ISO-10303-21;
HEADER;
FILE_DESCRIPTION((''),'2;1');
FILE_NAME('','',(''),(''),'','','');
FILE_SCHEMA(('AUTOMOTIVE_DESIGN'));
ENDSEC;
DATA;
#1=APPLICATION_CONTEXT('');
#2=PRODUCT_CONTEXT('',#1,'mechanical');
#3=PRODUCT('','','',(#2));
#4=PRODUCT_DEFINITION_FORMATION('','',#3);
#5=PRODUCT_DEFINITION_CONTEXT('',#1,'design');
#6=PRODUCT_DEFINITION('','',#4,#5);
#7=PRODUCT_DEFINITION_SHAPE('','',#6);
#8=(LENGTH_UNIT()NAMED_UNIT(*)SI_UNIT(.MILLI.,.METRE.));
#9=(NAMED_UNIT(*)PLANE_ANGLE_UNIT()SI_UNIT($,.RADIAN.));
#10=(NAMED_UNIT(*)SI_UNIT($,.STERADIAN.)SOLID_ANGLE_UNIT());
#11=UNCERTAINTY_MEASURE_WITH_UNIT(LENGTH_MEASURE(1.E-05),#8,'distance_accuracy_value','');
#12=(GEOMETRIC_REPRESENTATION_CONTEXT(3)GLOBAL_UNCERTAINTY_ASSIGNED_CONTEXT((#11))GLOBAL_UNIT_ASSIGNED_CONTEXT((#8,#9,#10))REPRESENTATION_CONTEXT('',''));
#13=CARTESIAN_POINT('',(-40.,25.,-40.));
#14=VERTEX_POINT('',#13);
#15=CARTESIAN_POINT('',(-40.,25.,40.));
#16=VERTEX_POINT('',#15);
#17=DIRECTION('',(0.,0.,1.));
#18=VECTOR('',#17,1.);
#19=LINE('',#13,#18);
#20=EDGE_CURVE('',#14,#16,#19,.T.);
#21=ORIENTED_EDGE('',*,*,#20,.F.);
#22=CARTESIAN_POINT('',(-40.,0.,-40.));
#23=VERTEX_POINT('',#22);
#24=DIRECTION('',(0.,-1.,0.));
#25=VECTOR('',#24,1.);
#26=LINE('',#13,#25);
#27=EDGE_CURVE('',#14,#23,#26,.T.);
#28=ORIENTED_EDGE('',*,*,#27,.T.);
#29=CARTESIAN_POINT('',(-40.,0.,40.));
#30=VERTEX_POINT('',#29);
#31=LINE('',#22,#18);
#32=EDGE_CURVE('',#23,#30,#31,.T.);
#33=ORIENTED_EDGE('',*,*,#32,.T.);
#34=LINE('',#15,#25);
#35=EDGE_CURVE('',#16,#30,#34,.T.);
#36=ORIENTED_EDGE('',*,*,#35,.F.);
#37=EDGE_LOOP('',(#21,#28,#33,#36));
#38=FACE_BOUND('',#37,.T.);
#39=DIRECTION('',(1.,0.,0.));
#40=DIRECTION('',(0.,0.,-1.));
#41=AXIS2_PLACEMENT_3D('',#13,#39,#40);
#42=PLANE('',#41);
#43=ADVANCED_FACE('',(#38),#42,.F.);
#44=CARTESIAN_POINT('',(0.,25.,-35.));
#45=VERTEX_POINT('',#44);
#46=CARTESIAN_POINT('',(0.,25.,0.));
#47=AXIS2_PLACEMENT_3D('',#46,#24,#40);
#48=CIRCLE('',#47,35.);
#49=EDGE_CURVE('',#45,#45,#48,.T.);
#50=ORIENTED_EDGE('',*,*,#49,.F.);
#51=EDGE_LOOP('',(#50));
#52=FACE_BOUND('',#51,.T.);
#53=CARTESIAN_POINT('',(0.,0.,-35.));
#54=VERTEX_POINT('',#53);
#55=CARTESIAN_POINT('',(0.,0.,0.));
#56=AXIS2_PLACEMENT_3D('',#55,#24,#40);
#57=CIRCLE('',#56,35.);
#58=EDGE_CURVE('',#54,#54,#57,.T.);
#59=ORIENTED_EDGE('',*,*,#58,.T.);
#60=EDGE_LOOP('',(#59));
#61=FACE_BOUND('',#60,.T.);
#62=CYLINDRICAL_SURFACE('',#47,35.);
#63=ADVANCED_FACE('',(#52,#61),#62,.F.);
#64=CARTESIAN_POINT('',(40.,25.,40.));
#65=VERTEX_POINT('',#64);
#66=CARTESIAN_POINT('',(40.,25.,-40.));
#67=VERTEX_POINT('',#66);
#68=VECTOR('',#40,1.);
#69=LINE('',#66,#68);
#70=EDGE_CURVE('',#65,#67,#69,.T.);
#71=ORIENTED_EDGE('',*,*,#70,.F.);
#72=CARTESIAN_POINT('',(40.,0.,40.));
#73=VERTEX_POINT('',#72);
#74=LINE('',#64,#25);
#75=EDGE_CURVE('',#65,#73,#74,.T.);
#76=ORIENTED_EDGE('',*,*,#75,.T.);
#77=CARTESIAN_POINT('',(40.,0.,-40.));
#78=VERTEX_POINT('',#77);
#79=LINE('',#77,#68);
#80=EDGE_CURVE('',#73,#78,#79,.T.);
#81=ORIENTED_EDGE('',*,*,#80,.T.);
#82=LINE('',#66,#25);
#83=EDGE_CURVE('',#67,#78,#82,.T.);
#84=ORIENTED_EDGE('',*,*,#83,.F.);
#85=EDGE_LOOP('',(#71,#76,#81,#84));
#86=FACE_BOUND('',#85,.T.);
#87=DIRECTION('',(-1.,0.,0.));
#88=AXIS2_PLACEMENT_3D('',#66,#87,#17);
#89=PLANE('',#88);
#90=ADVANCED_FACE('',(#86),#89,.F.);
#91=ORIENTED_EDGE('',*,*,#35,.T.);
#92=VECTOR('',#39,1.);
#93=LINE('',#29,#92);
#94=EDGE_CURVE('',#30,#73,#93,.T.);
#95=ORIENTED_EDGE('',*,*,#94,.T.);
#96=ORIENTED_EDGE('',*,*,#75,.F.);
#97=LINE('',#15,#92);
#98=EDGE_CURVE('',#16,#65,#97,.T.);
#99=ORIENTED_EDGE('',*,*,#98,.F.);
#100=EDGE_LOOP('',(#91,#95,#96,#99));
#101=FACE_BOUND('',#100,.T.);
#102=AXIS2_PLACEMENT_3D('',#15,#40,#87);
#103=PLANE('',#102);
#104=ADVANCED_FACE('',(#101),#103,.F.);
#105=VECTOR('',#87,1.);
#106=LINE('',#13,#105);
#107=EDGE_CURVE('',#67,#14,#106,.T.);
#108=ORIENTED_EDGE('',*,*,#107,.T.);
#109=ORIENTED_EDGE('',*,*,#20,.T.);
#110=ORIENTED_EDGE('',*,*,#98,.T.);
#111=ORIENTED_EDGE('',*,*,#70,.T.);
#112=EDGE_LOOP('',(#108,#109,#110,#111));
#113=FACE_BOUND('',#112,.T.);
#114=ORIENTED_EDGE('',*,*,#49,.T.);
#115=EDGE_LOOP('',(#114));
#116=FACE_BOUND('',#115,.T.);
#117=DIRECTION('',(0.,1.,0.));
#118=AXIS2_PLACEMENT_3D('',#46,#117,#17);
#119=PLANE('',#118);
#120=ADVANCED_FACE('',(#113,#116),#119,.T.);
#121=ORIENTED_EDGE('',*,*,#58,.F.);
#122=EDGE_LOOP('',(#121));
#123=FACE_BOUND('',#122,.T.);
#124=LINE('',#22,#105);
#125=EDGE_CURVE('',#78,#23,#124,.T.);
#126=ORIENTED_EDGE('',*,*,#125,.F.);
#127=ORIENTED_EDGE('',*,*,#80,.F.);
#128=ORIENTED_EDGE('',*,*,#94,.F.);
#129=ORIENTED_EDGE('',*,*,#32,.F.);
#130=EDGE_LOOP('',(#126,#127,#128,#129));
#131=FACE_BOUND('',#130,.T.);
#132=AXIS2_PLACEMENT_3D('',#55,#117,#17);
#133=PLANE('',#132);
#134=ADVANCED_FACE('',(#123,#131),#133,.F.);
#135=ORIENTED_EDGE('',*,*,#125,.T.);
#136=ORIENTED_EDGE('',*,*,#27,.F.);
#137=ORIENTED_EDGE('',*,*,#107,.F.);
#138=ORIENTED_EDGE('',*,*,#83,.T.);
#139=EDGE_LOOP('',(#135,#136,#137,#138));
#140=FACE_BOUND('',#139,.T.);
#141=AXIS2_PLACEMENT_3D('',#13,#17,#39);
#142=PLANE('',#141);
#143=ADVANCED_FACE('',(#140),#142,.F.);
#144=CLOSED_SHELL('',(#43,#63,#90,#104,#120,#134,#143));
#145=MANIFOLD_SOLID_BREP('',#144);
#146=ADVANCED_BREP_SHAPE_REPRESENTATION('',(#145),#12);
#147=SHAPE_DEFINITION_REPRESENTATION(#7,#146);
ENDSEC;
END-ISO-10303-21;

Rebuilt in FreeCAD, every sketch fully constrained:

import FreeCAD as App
import Part
import Sketcher

V = App.Vector

doc = App.newDocument("Part")
body = doc.addObject("PartDesign::Body", "Body")

sketch1 = body.newObject("Sketcher::SketchObject", "Sketch")
sketch1.AttachmentSupport = (doc.getObject("XZ_Plane"), [""])
sketch1.MapMode = "FlatFace"
sketch1.addGeometry(Part.LineSegment(V(-40, -40, 0), V(-40, 40, 0)), False)
sketch1.addGeometry(Part.LineSegment(V(-40, 40, 0), V(40, 40, 0)), False)
sketch1.addGeometry(Part.LineSegment(V(40, 40, 0), V(40, -40, 0)), False)
sketch1.addGeometry(Part.LineSegment(V(40, -40, 0), V(-40, -40, 0)), False)
sketch1.addConstraint(Sketcher.Constraint("Coincident", 0, 2, 1, 1))
sketch1.addConstraint(Sketcher.Constraint("Coincident", 1, 2, 2, 1))
sketch1.addConstraint(Sketcher.Constraint("Coincident", 2, 2, 3, 1))
sketch1.addConstraint(Sketcher.Constraint("Coincident", 3, 2, 0, 1))
sketch1.addConstraint(Sketcher.Constraint("Vertical", 0))
sketch1.addConstraint(Sketcher.Constraint("Horizontal", 1))
sketch1.addConstraint(Sketcher.Constraint("Vertical", 2))
sketch1.addConstraint(Sketcher.Constraint("Horizontal", 3))
sketch1.addConstraint(Sketcher.Constraint("Symmetric", 0, 2, 2, 2, -1, 1))
sketch1.addConstraint(Sketcher.Constraint("Equal", 3, 0))
sketch1.addConstraint(Sketcher.Constraint("DistanceX", 1, 1, 1, 2, 80.0))
pad1 = body.newObject("PartDesign::Pad", "Pad")
pad1.Profile = sketch1
pad1.Length = 25
pad1.Reversed = True

sketch2 = body.newObject("Sketcher::SketchObject", "Sketch001")
sketch2.AttachmentSupport = (doc.getObject("XZ_Plane"), [""])
sketch2.MapMode = "FlatFace"
sketch2.addGeometry(Part.Circle(V(0, 0, 0), V(0, 0, 1), 35), False)
sketch2.addConstraint(Sketcher.Constraint("Coincident", 0, 3, -1, 1))
sketch2.addConstraint(Sketcher.Constraint("Diameter", 0, 70.0))
pocket1 = body.newObject("PartDesign::Pocket", "Pocket")
pocket1.Profile = sketch2
pocket1.Type = "ThroughAll"

doc.recompute()
